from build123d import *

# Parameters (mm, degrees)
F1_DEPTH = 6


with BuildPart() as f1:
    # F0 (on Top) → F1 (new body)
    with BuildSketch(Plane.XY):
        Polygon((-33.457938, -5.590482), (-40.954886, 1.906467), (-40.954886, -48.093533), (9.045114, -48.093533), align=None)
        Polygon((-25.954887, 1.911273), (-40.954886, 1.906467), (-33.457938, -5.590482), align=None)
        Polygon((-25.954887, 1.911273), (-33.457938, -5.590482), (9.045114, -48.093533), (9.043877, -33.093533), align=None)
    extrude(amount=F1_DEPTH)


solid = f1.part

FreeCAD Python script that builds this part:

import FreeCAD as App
import Part
import Sketcher
Q = App.Units.Quantity


def add_polygon(sketch, points):
    """Adds a closed chain of lines whose ends are joined by coincident constraints."""
    first, n = sketch.GeometryCount, len(points)
    for a, b in zip(points, points[1:] + points[:1]):
        sketch.addGeometry(Part.LineSegment(App.Vector(*a, 0), App.Vector(*b, 0)), False)
    for i in range(n):
        sketch.addConstraint(Sketcher.Constraint("Coincident", first + i, 2, first + (i + 1) % n, 1))

doc = App.newDocument("Part")
body = doc.addObject("PartDesign::Body", "Body")

sketch1 = body.newObject("Sketcher::SketchObject", "Sketch")
sketch1.AttachmentSupport = (doc.getObject("XY_Plane"), [""])
sketch1.MapMode = "FlatFace"
add_polygon(sketch1, [(-40.954886, 1.906467), (-40.954886, -48.093533), (9.045114, -48.093533), (9.043877, -33.093533), (-25.954887, 1.911273)])
sketch1.addConstraint([
    Sketcher.Constraint("Vertical", 0),
    Sketcher.Constraint("Horizontal", 1),
    Sketcher.Constraint("Equal", 1, 0),
    Sketcher.Constraint("Equal", 2, 4),
    Sketcher.Constraint("DistanceX", 1, 1, 1, 2, Q("50 mm")),
    Sketcher.Constraint("Distance", 2, Q("15 mm")),
    Sketcher.Constraint("Distance", 3, Q("49.499999 mm")),
    Sketcher.Constraint("DistanceX", 0, 2, -1, 1, Q("40.954886 mm")),
    Sketcher.Constraint("DistanceY", 0, 2, -1, 1, Q("48.093533 mm")),
    Sketcher.Constraint("DistanceX", -1, 1, 2, 2, Q("9.043877 mm")),
])
pad1 = body.newObject("PartDesign::Pad", "Pad")
pad1.Profile = sketch1
pad1.Length = 6

doc.recompute()
